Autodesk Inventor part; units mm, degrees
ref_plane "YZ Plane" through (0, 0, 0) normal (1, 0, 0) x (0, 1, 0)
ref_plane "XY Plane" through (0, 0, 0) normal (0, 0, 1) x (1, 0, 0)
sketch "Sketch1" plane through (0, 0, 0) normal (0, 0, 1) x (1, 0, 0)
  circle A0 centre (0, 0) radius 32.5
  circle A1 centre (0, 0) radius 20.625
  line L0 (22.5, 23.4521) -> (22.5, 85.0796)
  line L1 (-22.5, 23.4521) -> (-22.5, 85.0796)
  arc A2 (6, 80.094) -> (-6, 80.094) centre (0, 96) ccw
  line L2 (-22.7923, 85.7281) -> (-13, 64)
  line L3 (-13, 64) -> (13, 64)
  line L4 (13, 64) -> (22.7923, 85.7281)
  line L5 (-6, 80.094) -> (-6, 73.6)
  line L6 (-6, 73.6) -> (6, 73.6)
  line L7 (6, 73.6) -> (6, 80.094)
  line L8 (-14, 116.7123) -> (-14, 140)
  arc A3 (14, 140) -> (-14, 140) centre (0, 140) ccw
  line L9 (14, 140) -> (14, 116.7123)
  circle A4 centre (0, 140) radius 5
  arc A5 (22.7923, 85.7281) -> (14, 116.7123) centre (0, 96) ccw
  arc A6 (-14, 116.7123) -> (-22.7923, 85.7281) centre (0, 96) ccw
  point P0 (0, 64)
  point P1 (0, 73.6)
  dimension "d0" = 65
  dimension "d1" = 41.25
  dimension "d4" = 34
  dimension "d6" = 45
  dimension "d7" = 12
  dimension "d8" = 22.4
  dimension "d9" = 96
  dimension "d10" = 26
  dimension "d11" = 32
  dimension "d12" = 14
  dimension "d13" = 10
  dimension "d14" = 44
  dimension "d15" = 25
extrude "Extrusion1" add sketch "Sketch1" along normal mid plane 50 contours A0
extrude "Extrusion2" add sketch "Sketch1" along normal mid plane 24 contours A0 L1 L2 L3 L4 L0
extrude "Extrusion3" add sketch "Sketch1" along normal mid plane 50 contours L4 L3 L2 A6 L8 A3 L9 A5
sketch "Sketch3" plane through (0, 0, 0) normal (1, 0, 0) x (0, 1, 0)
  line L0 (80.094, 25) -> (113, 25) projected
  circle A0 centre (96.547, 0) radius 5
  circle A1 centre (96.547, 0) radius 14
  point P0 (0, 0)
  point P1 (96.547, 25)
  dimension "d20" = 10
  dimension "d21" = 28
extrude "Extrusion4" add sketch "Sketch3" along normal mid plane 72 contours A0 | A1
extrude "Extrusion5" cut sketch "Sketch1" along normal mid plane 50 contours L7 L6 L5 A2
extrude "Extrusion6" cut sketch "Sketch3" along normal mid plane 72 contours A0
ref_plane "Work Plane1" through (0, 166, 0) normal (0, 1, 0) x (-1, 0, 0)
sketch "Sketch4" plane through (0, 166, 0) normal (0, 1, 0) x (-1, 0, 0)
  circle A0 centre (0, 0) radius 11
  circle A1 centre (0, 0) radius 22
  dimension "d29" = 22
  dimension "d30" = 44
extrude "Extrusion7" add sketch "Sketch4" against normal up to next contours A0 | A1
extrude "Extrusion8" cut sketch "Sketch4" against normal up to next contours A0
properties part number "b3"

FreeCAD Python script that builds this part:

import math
import FreeCAD as App
import Part
import Sketcher
from FreeCAD import Vector
Q = App.Units.Quantity

doc = App.newDocument("Part")
body = doc.addObject("PartDesign::Body", "Body")

sketch1 = doc.addObject("Sketcher::SketchObject", "Sketch")
body.addObject(sketch1)
sketch1.AttachmentSupport = (doc.XY_Plane, [""])
sketch1.MapMode = "FlatFace"
sketch1.addGeometry(Part.Circle(Vector(0, 0, 0), Vector(0, 0, 1), 32.5), False)
sketch1.addGeometry(Part.Circle(Vector(0, 0, 0), Vector(0, 0, 1), 20.625), False)
sketch1.addConstraint(Sketcher.Constraint("Coincident", 0, 3, -1, 1))
sketch1.addConstraint(Sketcher.Constraint("Coincident", 1, 3, -1, 1))
sketch1.addConstraint(Sketcher.Constraint("Diameter", 0, 65.0))
sketch1.addConstraint(Sketcher.Constraint("Diameter", 1, 41.25))
pad1 = doc.addObject("PartDesign::Pad", "Pad")
body.addObject(pad1)
pad1.Profile = sketch1
pad1.Length = 50
pad1.Midplane = True

sketch2 = doc.addObject("Sketcher::SketchObject", "Sketch001")
body.addObject(sketch2)
sketch2.AttachmentSupport = (doc.XY_Plane, [""])
sketch2.MapMode = "FlatFace"
sketch2.addGeometry(Part.ArcOfCircle(Part.Circle(Vector(0, 0, 0), Vector(0, 0, 1), 32.5), math.radians(46.186964), math.radians(133.813036)), False)
sketch2.addGeometry(Part.LineSegment(Vector(22.5, 23.4521, 0), Vector(22.5, 85.0796, 0)), False)
sketch2.addGeometry(Part.LineSegment(Vector(22.500031, 85.079586, 0), Vector(13, 64, 0)), False)
sketch2.addGeometry(Part.LineSegment(Vector(13, 64, 0), Vector(-13, 64, 0)), False)
sketch2.addGeometry(Part.LineSegment(Vector(-13, 64, 0), Vector(-22.500031, 85.079586, 0)), False)
sketch2.addGeometry(Part.LineSegment(Vector(-22.5, 85.0796, 0), Vector(-22.5, 23.4521, 0)), False)
sketch2.addConstraint(Sketcher.Constraint("Coincident", 0, 1, 1, 1))
sketch2.addConstraint(Sketcher.Constraint("Coincident", 1, 2, 2, 1))
sketch2.addConstraint(Sketcher.Constraint("Coincident", 2, 2, 3, 1))
sketch2.addConstraint(Sketcher.Constraint("Coincident", 3, 2, 4, 1))
sketch2.addConstraint(Sketcher.Constraint("Coincident", 4, 2, 5, 1))
sketch2.addConstraint(Sketcher.Constraint("Coincident", 5, 2, 0, 2))
sketch2.addConstraint(Sketcher.Constraint("Vertical", 1))
sketch2.addConstraint(Sketcher.Constraint("Horizontal", 3))
sketch2.addConstraint(Sketcher.Constraint("Vertical", 5))
sketch2.addConstraint(Sketcher.Constraint("Coincident", 0, 3, -1, 1))
sketch2.addConstraint(Sketcher.Constraint("Symmetric", 1, 2, 4, 2, -2))
sketch2.addConstraint(Sketcher.Constraint("Equal", 2, 4))
sketch2.addConstraint(Sketcher.Constraint("Radius", 0, 32.5))
sketch2.addConstraint(Sketcher.Constraint("DistanceX", 3, 2, 3, 1, 26.0))
sketch2.addConstraint(Sketcher.Constraint("DistanceX", 4, 2, 1, 2, 45.0))
sketch2.addConstraint(Sketcher.Constraint("DistanceY", -1, 1, 2, 2, 64.0))
sketch2.addConstraint(Sketcher.Constraint("Angle", 2, Q("-114.2599 deg")))
pad2 = doc.addObject("PartDesign::Pad", "Pad001")
body.addObject(pad2)
pad2.Profile = sketch2
pad2.Length = 24
pad2.Midplane = True

sketch3 = doc.addObject("Sketcher::SketchObject", "Sketch002")
body.addObject(sketch3)
sketch3.AttachmentSupport = (doc.XY_Plane, [""])
sketch3.MapMode = "FlatFace"
sketch3.addGeometry(Part.LineSegment(Vector(13, 64, 0), Vector(22.7923, 85.7281, 0)), False)
sketch3.addGeometry(Part.ArcOfCircle(Part.Circle(Vector(0, 96, 0), Vector(0, 0, 1), 24.999987), math.radians(-24.259858), math.radians(55.944183)), False)
sketch3.addGeometry(Part.LineSegment(Vector(14, 116.7123, 0), Vector(14, 140, 0)), False)
sketch3.addGeometry(Part.ArcOfCircle(Part.Circle(Vector(0, 140, 0), Vector(0, 0, 1), 14), math.radians(0), math.radians(180)), False)
sketch3.addGeometry(Part.LineSegment(Vector(-14, 140, 0), Vector(-14, 116.7123, 0)), False)
sketch3.addGeometry(Part.ArcOfCircle(Part.Circle(Vector(0, 96, 0), Vector(0, 0, 1), 25.000017), math.radians(124.055817), math.radians(204.259858)), False)
sketch3.addGeometry(Part.LineSegment(Vector(-22.7923, 85.7281, 0), Vector(-13, 64, 0)), False)
sketch3.addGeometry(Part.LineSegment(Vector(-13, 64, 0), Vector(13, 64, 0)), False)
sketch3.addGeometry(Part.ArcOfCircle(Part.Circle(Vector(0, 96, 0), Vector(0, 0, 1), 17.000025), math.radians(-69.332715), math.radians(249.332715)), False)
sketch3.addGeometry(Part.LineSegment(Vector(6, 80.094, 0), Vector(6, 73.6, 0)), False)
sketch3.addGeometry(Part.LineSegment(Vector(6, 73.6, 0), Vector(-6, 73.6, 0)), False)
sketch3.addGeometry(Part.LineSegment(Vector(-6, 73.6, 0), Vector(-6, 80.094, 0)), False)
sketch3.addGeometry(Part.Circle(Vector(0, 140, 0), Vector(0, 0, 1), 5), False)
sketch3.addConstraint(Sketcher.Constraint("Tangent", 0, 2, 1, 1))
sketch3.addConstraint(Sketcher.Constraint("Coincident", 1, 2, 2, 1))
sketch3.addConstraint(Sketcher.Constraint("Tangent", 2, 2, 3, 1))
sketch3.addConstraint(Sketcher.Constraint("Tangent", 3, 2, 4, 1))
sketch3.addConstraint(Sketcher.Constraint("Coincident", 4, 2, 5, 1))
sketch3.addConstraint(Sketcher.Constraint("Tangent", 5, 2, 6, 1))
sketch3.addConstraint(Sketcher.Constraint("Coincident", 6, 2, 7, 1))
sketch3.addConstraint(Sketcher.Constraint("Coincident", 7, 2, 0, 1))
sketch3.addConstraint(Sketcher.Constraint("Coincident", 8, 1, 9, 1))
sketch3.addConstraint(Sketcher.Constraint("Coincident", 9, 2, 10, 1))
sketch3.addConstraint(Sketcher.Constraint("Coincident", 10, 2, 11, 1))
sketch3.addConstraint(Sketcher.Constraint("Coincident", 11, 2, 8, 2))
sketch3.addConstraint(Sketcher.Constraint("Vertical", 2))
sketch3.addConstraint(Sketcher.Constraint("Vertical", 4))
sketch3.addConstraint(Sketcher.Constraint("Horizontal", 7))
sketch3.addConstraint(Sketcher.Constraint("Vertical", 9))
sketch3.addConstraint(Sketcher.Constraint("Horizontal", 10))
sketch3.addConstraint(Sketcher.Constraint("Vertical", 11))
sketch3.addConstraint(Sketcher.Constraint("Coincident", 5, 3, 1, 3))
sketch3.addConstraint(Sketcher.Constraint("Coincident", 8, 3, 1, 3))
sketch3.addConstraint(Sketcher.Constraint("Coincident", 12, 3, 3, 3))
sketch3.addConstraint(Sketcher.Constraint("Equal", 1, 5))
sketch3.addConstraint(Sketcher.Constraint("Symmetric", 1, 2, 4, 2, -2))
sketch3.addConstraint(Sketcher.Constraint("Horizontal", 0, 2, 5, 2))
sketch3.addConstraint(Sketcher.Constraint("Horizontal", 8, 1, 11, 2))
sketch3.addConstraint(Sketcher.Constraint("Diameter", 12, 10.0))
sketch3.addConstraint(Sketcher.Constraint("Radius", 1, 25.0))
sketch3.addConstraint(Sketcher.Constraint("Radius", 3, 14.0))
sketch3.addConstraint(Sketcher.Constraint("Radius", 8, 17.0))
sketch3.addConstraint(Sketcher.Constraint("DistanceX", 7, 1, 7, 2, 26.0))
sketch3.addConstraint(Sketcher.Constraint("DistanceX", 10, 2, 10, 1, 12.0))
sketch3.addConstraint(Sketcher.Constraint("DistanceY", -1, 1, 1, 3, 96.0))
sketch3.addConstraint(Sketcher.Constraint("DistanceY", 1, 3, 3, 3, 44.0))
sketch3.addConstraint(Sketcher.Constraint("DistanceY", 6, 2, 1, 3, 32.0))
sketch3.addConstraint(Sketcher.Constraint("DistanceY", 9, 2, 1, 3, 22.4))
pad3 = doc.addObject("PartDesign::Pad", "Pad002")
body.addObject(pad3)
pad3.Profile = sketch3
pad3.Length = 50
pad3.Midplane = True

sketch4 = doc.addObject("Sketcher::SketchObject", "Sketch003")
body.addObject(sketch4)
sketch4.AttachmentSupport = (doc.YZ_Plane, [""])
sketch4.MapMode = "FlatFace"
sketch4.addGeometry(Part.Circle(Vector(96.547, 0, 0), Vector(0, 0, 1), 14), False)
sketch4.addConstraint(Sketcher.Constraint("PointOnObject", 0, 3, -1))
sketch4.addConstraint(Sketcher.Constraint("Diameter", 0, 28.0))
sketch4.addConstraint(Sketcher.Constraint("DistanceX", -1, 1, 0, 3, 96.547))
pad4 = doc.addObject("PartDesign::Pad", "Pad003")
body.addObject(pad4)
pad4.Profile = sketch4
pad4.Length = 72
pad4.Midplane = True

sketch5 = doc.addObject("Sketcher::SketchObject", "Sketch004")
body.addObject(sketch5)
sketch5.AttachmentSupport = (doc.XY_Plane, [""])
sketch5.MapMode = "FlatFace"
sketch5.addGeometry(Part.LineSegment(Vector(6, 73.6, 0), Vector(6, 80.094, 0)), False)
sketch5.addGeometry(Part.ArcOfCircle(Part.Circle(Vector(0, 96, 0), Vector(0, 0, 1), 17.000025), math.radians(-69.332715), math.radians(249.332715)), False)
sketch5.addGeometry(Part.LineSegment(Vector(-6, 80.094, 0), Vector(-6, 73.6, 0)), False)
sketch5.addGeometry(Part.LineSegment(Vector(-6, 73.6, 0), Vector(6, 73.6, 0)), False)
sketch5.addConstraint(Sketcher.Constraint("Coincident", 0, 2, 1, 1))
sketch5.addConstraint(Sketcher.Constraint("Coincident", 1, 2, 2, 1))
sketch5.addConstraint(Sketcher.Constraint("Coincident", 2, 2, 3, 1))
sketch5.addConstraint(Sketcher.Constraint("Coincident", 3, 2, 0, 1))
sketch5.addConstraint(Sketcher.Constraint("Vertical", 0))
sketch5.addConstraint(Sketcher.Constraint("Vertical", 2))
sketch5.addConstraint(Sketcher.Constraint("Horizontal", 3))
sketch5.addConstraint(Sketcher.Constraint("Symmetric", 0, 2, 1, 2, -2))
sketch5.addConstraint(Sketcher.Constraint("Radius", 1, 17.0))
sketch5.addConstraint(Sketcher.Constraint("DistanceX", 3, 1, 3, 2, 12.0))
sketch5.addConstraint(Sketcher.Constraint("DistanceY", -1, 1, 1, 3, 96.0))
sketch5.addConstraint(Sketcher.Constraint("DistanceY", 2, 2, 1, 3, 22.4))
pocket1 = doc.addObject("PartDesign::Pocket", "Pocket")
body.addObject(pocket1)
pocket1.Profile = sketch5
pocket1.Length = 50
pocket1.Midplane = True

sketch6 = doc.addObject("Sketcher::SketchObject", "Sketch005")
body.addObject(sketch6)
sketch6.AttachmentSupport = (doc.YZ_Plane, [""])
sketch6.MapMode = "FlatFace"
sketch6.addGeometry(Part.Circle(Vector(96.547, 0, 0), Vector(0, 0, 1), 5), False)
sketch6.addConstraint(Sketcher.Constraint("PointOnObject", 0, 3, -1))
sketch6.addConstraint(Sketcher.Constraint("Diameter", 0, 10.0))
sketch6.addConstraint(Sketcher.Constraint("DistanceX", -1, 1, 0, 3, 96.547))
pocket2 = doc.addObject("PartDesign::Pocket", "Pocket001")
body.addObject(pocket2)
pocket2.Profile = sketch6
pocket2.Length = 72
pocket2.Midplane = True

sketch7 = doc.addObject("Sketcher::SketchObject", "Sketch006")
body.addObject(sketch7)
sketch7.AttachmentSupport = (doc.XZ_Plane, [""])
sketch7.MapMode = "FlatFace"
sketch7.AttachmentOffset = App.Placement(Vector(0, 0, -166), App.Rotation())
sketch7.addGeometry(Part.Circle(Vector(0, 0, 0), Vector(0, 0, 1), 22), False)
sketch7.addConstraint(Sketcher.Constraint("Coincident", 0, 3, -1, 1))
sketch7.addConstraint(Sketcher.Constraint("Diameter", 0, 44.0))
pad5 = doc.addObject("PartDesign::Pad", "Pad004")
body.addObject(pad5)
pad5.Profile = sketch7
pad5.Type = "UpToFirst"

sketch8 = doc.addObject("Sketcher::SketchObject", "Sketch007")
body.addObject(sketch8)
sketch8.AttachmentSupport = (doc.XZ_Plane, [""])
sketch8.MapMode = "FlatFace"
sketch8.AttachmentOffset = App.Placement(Vector(0, 0, -166), App.Rotation())
sketch8.addGeometry(Part.Circle(Vector(0, 0, 0), Vector(0, 0, 1), 11), False)
sketch8.addConstraint(Sketcher.Constraint("Coincident", 0, 3, -1, 1))
sketch8.addConstraint(Sketcher.Constraint("Diameter", 0, 22.0))
pocket3 = doc.addObject("PartDesign::Pocket", "Pocket002")
body.addObject(pocket3)
pocket3.Profile = sketch8
pocket3.Length = 57.0385
pocket3.Reversed = True

doc.recompute()
